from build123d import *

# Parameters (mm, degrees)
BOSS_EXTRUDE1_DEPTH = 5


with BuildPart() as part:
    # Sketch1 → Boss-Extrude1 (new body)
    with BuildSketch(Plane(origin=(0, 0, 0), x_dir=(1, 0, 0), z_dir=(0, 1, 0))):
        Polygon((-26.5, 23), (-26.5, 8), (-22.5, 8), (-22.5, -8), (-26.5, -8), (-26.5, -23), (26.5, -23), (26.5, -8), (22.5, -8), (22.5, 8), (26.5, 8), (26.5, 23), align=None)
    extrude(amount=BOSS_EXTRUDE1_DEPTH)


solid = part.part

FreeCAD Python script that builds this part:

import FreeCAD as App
import Part
import Sketcher


def add_polygon(sketch, points):
    """Adds a closed chain of lines whose ends are joined by coincident constraints."""
    first, n = sketch.GeometryCount, len(points)
    for a, b in zip(points, points[1:] + points[:1]):
        sketch.addGeometry(Part.LineSegment(App.Vector(*a, 0), App.Vector(*b, 0)), False)
    for i in range(n):
        sketch.addConstraint(Sketcher.Constraint("Coincident", first + i, 2, first + (i + 1) % n, 1))

doc = App.newDocument("Part")
body = doc.addObject("PartDesign::Body", "Body")

# Sketch on XZ plane
sketch1 = body.newObject("Sketcher::SketchObject", "Sketch")
sketch1.AttachmentSupport = (doc.getObject("XZ_Plane"), [""])
sketch1.MapMode = "FlatFace"
add_polygon(sketch1, [(-26.5, -23), (-26.5, -8), (-22.5, -8), (-22.5, 8), (-26.5, 8), (-26.5, 23), (26.5, 23), (26.5, 8), (22.5, 8), (22.5, -8), (26.5, -8), (26.5, -23)])  # lines 0-11
sketch1.addConstraint([
    Sketcher.Constraint("Vertical", 0),
    Sketcher.Constraint("Horizontal", 1),
    Sketcher.Constraint("Vertical", 2),
    Sketcher.Constraint("Horizontal", 3),
    Sketcher.Constraint("Vertical", 4),
    Sketcher.Constraint("Horizontal", 5),
    Sketcher.Constraint("Vertical", 6),
    Sketcher.Constraint("Horizontal", 7),
    Sketcher.Constraint("Vertical", 8),
    Sketcher.Constraint("Horizontal", 9),
    Sketcher.Constraint("Vertical", 10),
    Sketcher.Constraint("Horizontal", 11),
    Sketcher.Constraint("Symmetric", 0, 2, 6, 2, -1, 1),
    Sketcher.Constraint("Symmetric", 2, 2, 8, 2, -1, 1),
    Sketcher.Constraint("Symmetric", 4, 2, 10, 2, -1, 1),
    Sketcher.Constraint("Symmetric", 3, 2, 6, 2, -2),
    Sketcher.Constraint("DistanceX", 1, 1, 1, 2, 4.0),
    Sketcher.Constraint("DistanceX", 5, 1, 5, 2, 53.0),
    Sketcher.Constraint("DistanceY", 0, 1, 0, 2, 15.0),
    Sketcher.Constraint("DistanceY", 2, 1, 2, 2, 16.0),
])
pad1 = body.newObject("PartDesign::Pad", "Pad")
pad1.Profile = sketch1
pad1.Length = 5
pad1.Reversed = True

doc.recompute()
